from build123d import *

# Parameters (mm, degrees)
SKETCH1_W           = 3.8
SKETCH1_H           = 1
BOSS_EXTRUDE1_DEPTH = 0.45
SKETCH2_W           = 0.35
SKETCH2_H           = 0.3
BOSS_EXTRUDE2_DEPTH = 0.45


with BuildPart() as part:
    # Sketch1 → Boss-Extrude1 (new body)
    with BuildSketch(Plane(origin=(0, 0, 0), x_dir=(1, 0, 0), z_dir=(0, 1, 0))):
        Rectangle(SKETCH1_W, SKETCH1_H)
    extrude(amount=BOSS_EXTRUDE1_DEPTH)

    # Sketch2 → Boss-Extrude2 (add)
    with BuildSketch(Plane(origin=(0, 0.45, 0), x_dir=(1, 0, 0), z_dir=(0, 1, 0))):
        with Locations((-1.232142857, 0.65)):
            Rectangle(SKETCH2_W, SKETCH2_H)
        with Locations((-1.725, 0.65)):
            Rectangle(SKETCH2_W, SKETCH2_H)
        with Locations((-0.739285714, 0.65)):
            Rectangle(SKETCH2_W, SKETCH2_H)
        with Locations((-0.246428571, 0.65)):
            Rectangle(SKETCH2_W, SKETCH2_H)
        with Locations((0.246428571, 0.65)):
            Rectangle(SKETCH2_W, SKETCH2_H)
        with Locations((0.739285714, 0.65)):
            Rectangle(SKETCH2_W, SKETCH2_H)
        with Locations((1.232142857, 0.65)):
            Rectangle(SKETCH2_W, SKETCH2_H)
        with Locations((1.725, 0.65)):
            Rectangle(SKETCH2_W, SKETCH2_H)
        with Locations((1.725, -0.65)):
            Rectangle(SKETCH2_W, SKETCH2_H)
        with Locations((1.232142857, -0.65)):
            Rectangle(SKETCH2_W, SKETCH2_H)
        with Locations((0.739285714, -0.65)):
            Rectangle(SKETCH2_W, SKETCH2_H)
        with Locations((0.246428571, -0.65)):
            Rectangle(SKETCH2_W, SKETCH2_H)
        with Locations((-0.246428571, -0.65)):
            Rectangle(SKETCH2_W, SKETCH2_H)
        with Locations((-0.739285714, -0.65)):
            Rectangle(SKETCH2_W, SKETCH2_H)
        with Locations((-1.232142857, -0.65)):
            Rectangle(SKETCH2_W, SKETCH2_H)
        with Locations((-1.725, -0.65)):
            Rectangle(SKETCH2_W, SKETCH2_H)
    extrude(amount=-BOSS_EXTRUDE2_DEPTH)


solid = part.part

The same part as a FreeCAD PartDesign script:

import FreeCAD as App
import Part
import Sketcher
from FreeCAD import Vector
Q = App.Units.Quantity


def add_polygon(sketch, points):
    """Adds a closed chain of lines whose ends are joined by coincident constraints."""
    first, n = sketch.GeometryCount, len(points)
    for a, b in zip(points, points[1:] + points[:1]):
        sketch.addGeometry(Part.LineSegment(App.Vector(*a, 0), App.Vector(*b, 0)), False)
    for i in range(n):
        sketch.addConstraint(Sketcher.Constraint("Coincident", first + i, 2, first + (i + 1) % n, 1))

doc = App.newDocument("Part")
body = doc.addObject("PartDesign::Body", "Body")

# Sketch on XZ plane
sketch1 = body.newObject("Sketcher::SketchObject", "Sketch")
sketch1.AttachmentSupport = (doc.getObject("XZ_Plane"), [""])
sketch1.MapMode = "FlatFace"
add_polygon(sketch1, [(-1.9, -0.5), (-1.9, 0.5), (1.9, 0.5), (1.9, -0.5)])  # lines 0-3
sketch1.addConstraint([
    Sketcher.Constraint("Vertical", 0),
    Sketcher.Constraint("Horizontal", 1),
    Sketcher.Constraint("Vertical", 2),
    Sketcher.Constraint("Horizontal", 3),
    Sketcher.Constraint("Symmetric", 0, 2, 2, 2, -1, 1),
    Sketcher.Constraint("DistanceY", 0, 1, 0, 2, Q("1 mm")),
    Sketcher.Constraint("DistanceX", 1, 1, 1, 2, Q("3.8 mm")),
])
pad1 = body.newObject("PartDesign::Pad", "Pad")
pad1.Profile = sketch1
pad1.Length = 0.45
pad1.Reversed = True

# Sketch on XZ plane
sketch2 = body.newObject("Sketcher::SketchObject", "Sketch001")
sketch2.AttachmentSupport = (doc.getObject("XZ_Plane"), [""])
sketch2.MapMode = "FlatFace"
sketch2.AttachmentOffset = App.Placement(Vector(0, 0, -0.45), App.Rotation())
add_polygon(sketch2, [(-1.41, -0.8), (-1.41, -0.5), (-1.06, -0.5), (-1.06, -0.8)])  # lines 0-3
add_polygon(sketch2, [(-1.9, -0.8), (-1.9, -0.5), (-1.55, -0.5), (-1.55, -0.8)])  # lines 4-7
add_polygon(sketch2, [(-0.91, -0.8), (-0.91, -0.5), (-0.56, -0.5), (-0.56, -0.8)])  # lines 8-11
add_polygon(sketch2, [(-0.42, -0.8), (-0.42, -0.5), (-0.07, -0.5), (-0.07, -0.8)])  # lines 12-15
add_polygon(sketch2, [(0.07, -0.8), (0.07, -0.5), (0.42, -0.5), (0.42, -0.8)])  # lines 16-19
add_polygon(sketch2, [(0.56, -0.8), (0.56, -0.5), (0.91, -0.5), (0.91, -0.8)])  # lines 20-23
add_polygon(sketch2, [(1.06, -0.8), (1.06, -0.5), (1.41, -0.5), (1.41, -0.8)])  # lines 24-27
add_polygon(sketch2, [(1.55, -0.8), (1.55, -0.5), (1.9, -0.5), (1.9, -0.8)])  # lines 28-31
add_polygon(sketch2, [(1.55, 0.5), (1.55, 0.8), (1.9, 0.8), (1.9, 0.5)])  # lines 32-35
add_polygon(sketch2, [(1.06, 0.5), (1.06, 0.8), (1.41, 0.8), (1.41, 0.5)])  # lines 36-39
add_polygon(sketch2, [(0.56, 0.5), (0.56, 0.8), (0.91, 0.8), (0.91, 0.5)])  # lines 40-43
add_polygon(sketch2, [(0.07, 0.5), (0.07, 0.8), (0.42, 0.8), (0.42, 0.5)])  # lines 44-47
add_polygon(sketch2, [(-0.42, 0.5), (-0.42, 0.8), (-0.07, 0.8), (-0.07, 0.5)])  # lines 48-51
add_polygon(sketch2, [(-0.91, 0.5), (-0.91, 0.8), (-0.56, 0.8), (-0.56, 0.5)])  # lines 52-55
add_polygon(sketch2, [(-1.41, 0.5), (-1.41, 0.8), (-1.06, 0.8), (-1.06, 0.5)])  # lines 56-59
add_polygon(sketch2, [(-1.9, 0.5), (-1.9, 0.8), (-1.55, 0.8), (-1.55, 0.5)])  # lines 60-63
sketch2.addConstraint([
    Sketcher.Constraint("Vertical", 0),
    Sketcher.Constraint("Horizontal", 1),
    Sketcher.Constraint("Vertical", 2),
    Sketcher.Constraint("Horizontal", 3),
    Sketcher.Constraint("Vertical", 4),
    Sketcher.Constraint("Horizontal", 5),
    Sketcher.Constraint("Vertical", 6),
    Sketcher.Constraint("Horizontal", 7),
    Sketcher.Constraint("Vertical", 8),
    Sketcher.Constraint("Horizontal", 9),
    Sketcher.Constraint("Vertical", 10),
    Sketcher.Constraint("Horizontal", 11),
    Sketcher.Constraint("Vertical", 12),
    Sketcher.Constraint("Horizontal", 13),
    Sketcher.Constraint("Vertical", 14),
    Sketcher.Constraint("Horizontal", 15),
    Sketcher.Constraint("Vertical", 16),
    Sketcher.Constraint("Horizontal", 17),
    Sketcher.Constraint("Vertical", 18),
    Sketcher.Constraint("Horizontal", 19),
    Sketcher.Constraint("Vertical", 20),
    Sketcher.Constraint("Horizontal", 21),
    Sketcher.Constraint("Vertical", 22),
    Sketcher.Constraint("Horizontal", 23),
    Sketcher.Constraint("Vertical", 24),
    Sketcher.Constraint("Horizontal", 25),
    Sketcher.Constraint("Vertical", 26),
    Sketcher.Constraint("Horizontal", 27),
    Sketcher.Constraint("Vertical", 28),
    Sketcher.Constraint("Horizontal", 29),
    Sketcher.Constraint("Vertical", 30),
    Sketcher.Constraint("Horizontal", 31),
    Sketcher.Constraint("Vertical", 32),
    Sketcher.Constraint("Horizontal", 33),
    Sketcher.Constraint("Vertical", 34),
    Sketcher.Constraint("Horizontal", 35),
    Sketcher.Constraint("Vertical", 36),
    Sketcher.Constraint("Horizontal", 37),
    Sketcher.Constraint("Vertical", 38),
    Sketcher.Constraint("Horizontal", 39),
    Sketcher.Constraint("Vertical", 40),
    Sketcher.Constraint("Horizontal", 41),
    Sketcher.Constraint("Vertical", 42),
    Sketcher.Constraint("Horizontal", 43),
    Sketcher.Constraint("Vertical", 44),
    Sketcher.Constraint("Horizontal", 45),
    Sketcher.Constraint("Vertical", 46),
    Sketcher.Constraint("Horizontal", 47),
    Sketcher.Constraint("Vertical", 48),
    Sketcher.Constraint("Horizontal", 49),
    Sketcher.Constraint("Vertical", 50),
    Sketcher.Constraint("Horizontal", 51),
    Sketcher.Constraint("Vertical", 52),
    Sketcher.Constraint("Horizontal", 53),
    Sketcher.Constraint("Vertical", 54),
    Sketcher.Constraint("Horizontal", 55),
    Sketcher.Constraint("Vertical", 56),
    Sketcher.Constraint("Horizontal", 57),
    Sketcher.Constraint("Vertical", 58),
    Sketcher.Constraint("Horizontal", 59),
    Sketcher.Constraint("Vertical", 60),
    Sketcher.Constraint("Horizontal", 61),
    Sketcher.Constraint("Vertical", 62),
    Sketcher.Constraint("Horizontal", 63),
    Sketcher.Constraint("Symmetric", 6, 2, 32, 2, -1, 1),
    Sketcher.Constraint("Symmetric", 4, 2, 34, 2, -1, 1),
    Sketcher.Constraint("Symmetric", 2, 2, 36, 2, -1, 1),
    Sketcher.Constraint("Symmetric", 0, 2, 38, 2, -1, 1),
    Sketcher.Constraint("Symmetric", 10, 2, 40, 2, -1, 1),
    Sketcher.Constraint("Symmetric", 8, 2, 42, 2, -1, 1),
    Sketcher.Constraint("Symmetric", 14, 2, 44, 2, -1, 1),
    Sketcher.Constraint("Symmetric", 12, 2, 46, 2, -1, 1),
    Sketcher.Constraint("Symmetric", 18, 2, 48, 2, -1, 1),
    Sketcher.Constraint("Symmetric", 16, 2, 50, 2, -1, 1),
    Sketcher.Constraint("Symmetric", 22, 2, 52, 2, -1, 1),
    Sketcher.Constraint("Symmetric", 20, 2, 54, 2, -1, 1),
    Sketcher.Constraint("Symmetric", 26, 2, 56, 2, -1, 1),
    Sketcher.Constraint("Symmetric", 24, 2, 58, 2, -1, 1),
    Sketcher.Constraint("Symmetric", 30, 2, 60, 2, -1, 1),
    Sketcher.Constraint("Symmetric", 28, 2, 62, 2, -1, 1),
    Sketcher.Constraint("Symmetric", 13, 2, 16, 2, -2),
    Sketcher.Constraint("Symmetric", 15, 2, 18, 2, -2),
    Sketcher.Constraint("Symmetric", 9, 2, 20, 2, -2),
    Sketcher.Constraint("Symmetric", 11, 2, 22, 2, -2),
    Sketcher.Constraint("Symmetric", 1, 2, 24, 2, -2),
    Sketcher.Constraint("Symmetric", 3, 2, 26, 2, -2),
    Sketcher.Constraint("Symmetric", 5, 2, 28, 2, -2),
    Sketcher.Constraint("Symmetric", 7, 2, 30, 2, -2),
    Sketcher.Constraint("Horizontal", 1, 2, 4, 2),
    Sketcher.Constraint("Horizontal", 3, 2, 6, 2),
    Sketcher.Constraint("Horizontal", 5, 2, 8, 2),
    Sketcher.Constraint("Horizontal", 7, 2, 10, 2),
    Sketcher.Constraint("Horizontal", 9, 2, 12, 2),
    Sketcher.Constraint("Horizontal", 11, 2, 14, 2),
    Sketcher.Constraint("Equal", 3, 5),
    Sketcher.Constraint("Equal", 7, 9),
    Sketcher.Constraint("Equal", 11, 13),
    Sketcher.Constraint("DistanceY", 0, 1, 0, 2, Q("0.3 mm")),
    Sketcher.Constraint("DistanceX", 1, 1, 1, 2, Q("0.35 mm")),
    Sketcher.Constraint("DistanceY", 0, 2, -1, 1, Q("0.5 mm")),
    Sketcher.Constraint("DistanceX", 4, 2, -1, 1, Q("1.9 mm")),
    Sketcher.Constraint("DistanceX", 12, 2, -1, 1, Q("0.421429 mm")),
    Sketcher.Constraint("DistanceX", 0, 2, -1, 1, Q("1.407143 mm")),
    Sketcher.Constraint("DistanceX", 8, 2, -1, 1, Q("0.914286 mm")),
])
pad2 = body.newObject("PartDesign::Pad", "Pad001")
pad2.Profile = sketch2
pad2.Length = 0.45

doc.recompute()
